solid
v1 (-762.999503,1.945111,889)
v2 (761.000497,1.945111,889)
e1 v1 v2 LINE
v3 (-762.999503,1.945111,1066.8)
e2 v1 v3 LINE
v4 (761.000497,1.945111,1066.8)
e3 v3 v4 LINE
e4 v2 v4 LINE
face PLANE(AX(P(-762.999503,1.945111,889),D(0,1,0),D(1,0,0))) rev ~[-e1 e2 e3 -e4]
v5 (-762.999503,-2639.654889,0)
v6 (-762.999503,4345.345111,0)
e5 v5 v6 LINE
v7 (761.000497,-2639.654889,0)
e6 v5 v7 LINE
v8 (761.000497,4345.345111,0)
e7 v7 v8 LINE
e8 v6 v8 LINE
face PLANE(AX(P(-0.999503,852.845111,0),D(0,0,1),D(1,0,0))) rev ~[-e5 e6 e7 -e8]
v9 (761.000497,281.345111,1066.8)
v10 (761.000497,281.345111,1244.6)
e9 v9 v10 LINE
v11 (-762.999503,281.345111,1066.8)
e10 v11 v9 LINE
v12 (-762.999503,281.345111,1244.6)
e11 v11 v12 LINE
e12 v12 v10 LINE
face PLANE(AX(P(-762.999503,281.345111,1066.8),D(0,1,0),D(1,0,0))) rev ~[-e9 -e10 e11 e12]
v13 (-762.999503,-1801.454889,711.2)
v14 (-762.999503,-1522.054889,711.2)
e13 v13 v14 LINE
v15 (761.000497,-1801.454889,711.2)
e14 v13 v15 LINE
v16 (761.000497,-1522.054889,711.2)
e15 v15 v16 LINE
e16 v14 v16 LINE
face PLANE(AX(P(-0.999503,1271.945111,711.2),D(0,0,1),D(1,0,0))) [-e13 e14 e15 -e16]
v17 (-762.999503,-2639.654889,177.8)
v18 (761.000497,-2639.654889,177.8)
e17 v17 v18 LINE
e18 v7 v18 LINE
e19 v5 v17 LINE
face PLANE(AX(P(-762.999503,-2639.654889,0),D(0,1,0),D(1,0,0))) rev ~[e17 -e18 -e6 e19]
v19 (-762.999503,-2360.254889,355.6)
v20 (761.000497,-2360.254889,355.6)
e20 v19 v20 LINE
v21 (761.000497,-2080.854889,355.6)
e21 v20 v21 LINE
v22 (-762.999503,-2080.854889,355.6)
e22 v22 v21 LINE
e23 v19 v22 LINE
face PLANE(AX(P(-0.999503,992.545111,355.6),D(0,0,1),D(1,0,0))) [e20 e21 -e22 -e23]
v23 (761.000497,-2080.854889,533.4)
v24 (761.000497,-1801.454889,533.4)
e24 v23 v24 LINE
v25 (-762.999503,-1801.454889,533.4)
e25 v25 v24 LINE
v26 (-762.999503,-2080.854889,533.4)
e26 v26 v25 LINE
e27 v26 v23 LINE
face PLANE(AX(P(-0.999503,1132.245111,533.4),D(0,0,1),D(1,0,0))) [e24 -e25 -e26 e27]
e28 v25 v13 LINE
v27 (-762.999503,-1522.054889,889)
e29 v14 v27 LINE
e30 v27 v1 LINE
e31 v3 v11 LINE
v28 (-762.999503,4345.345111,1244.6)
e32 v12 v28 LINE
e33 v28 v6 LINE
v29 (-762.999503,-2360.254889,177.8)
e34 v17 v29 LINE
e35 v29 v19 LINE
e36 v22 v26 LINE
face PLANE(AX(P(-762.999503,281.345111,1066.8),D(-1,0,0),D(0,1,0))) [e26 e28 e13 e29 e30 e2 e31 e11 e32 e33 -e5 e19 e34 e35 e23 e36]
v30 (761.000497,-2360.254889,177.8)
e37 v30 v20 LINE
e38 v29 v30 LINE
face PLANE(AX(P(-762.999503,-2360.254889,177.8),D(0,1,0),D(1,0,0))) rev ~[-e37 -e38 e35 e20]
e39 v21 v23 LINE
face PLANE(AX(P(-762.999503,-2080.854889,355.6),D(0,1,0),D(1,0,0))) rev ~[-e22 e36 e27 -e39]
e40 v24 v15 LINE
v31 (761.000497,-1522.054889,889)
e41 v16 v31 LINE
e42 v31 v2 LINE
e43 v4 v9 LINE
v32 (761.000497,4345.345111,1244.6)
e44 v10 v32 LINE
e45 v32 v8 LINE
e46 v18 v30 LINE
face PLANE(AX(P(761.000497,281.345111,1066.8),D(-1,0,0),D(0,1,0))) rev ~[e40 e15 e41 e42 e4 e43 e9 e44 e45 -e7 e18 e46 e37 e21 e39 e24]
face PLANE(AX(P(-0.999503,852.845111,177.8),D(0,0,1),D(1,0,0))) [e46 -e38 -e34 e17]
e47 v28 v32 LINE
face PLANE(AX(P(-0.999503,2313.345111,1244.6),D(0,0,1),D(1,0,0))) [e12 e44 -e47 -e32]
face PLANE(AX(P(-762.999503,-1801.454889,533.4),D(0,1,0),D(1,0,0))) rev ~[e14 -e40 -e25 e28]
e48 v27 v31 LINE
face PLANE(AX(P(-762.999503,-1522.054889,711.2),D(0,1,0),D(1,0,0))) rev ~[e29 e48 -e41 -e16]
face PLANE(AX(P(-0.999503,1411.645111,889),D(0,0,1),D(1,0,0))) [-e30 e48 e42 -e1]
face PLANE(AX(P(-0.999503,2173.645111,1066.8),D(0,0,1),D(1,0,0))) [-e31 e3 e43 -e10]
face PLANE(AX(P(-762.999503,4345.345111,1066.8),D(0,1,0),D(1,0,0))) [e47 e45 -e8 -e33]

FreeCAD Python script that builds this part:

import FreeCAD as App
import Part
import Sketcher
from FreeCAD import Vector
Q = App.Units.Quantity

doc = App.newDocument("Part")
body = doc.addObject("PartDesign::Body", "Body")

sketch1 = doc.addObject("Sketcher::SketchObject", "Sketch")
body.addObject(sketch1)
sketch1.AttachmentSupport = (doc.XY_Plane, [""])
sketch1.MapMode = "FlatFace"
sketch1.addGeometry([
    Part.LineSegment(Vector(-763, 4345, 0), Vector(-763, -2640, 0)),
    Part.LineSegment(Vector(-763, -2640, 0), Vector(761, -2640, 0)),
    Part.LineSegment(Vector(761, -2640, 0), Vector(761, 4345, 0)),
    Part.LineSegment(Vector(761, 4345, 0), Vector(-763, 4345, 0)),
], False)
sketch1.addConstraint([
    Sketcher.Constraint("Coincident", 0, 2, 1, 1),
    Sketcher.Constraint("Coincident", 1, 2, 2, 1),
    Sketcher.Constraint("Coincident", 2, 2, 3, 1),
    Sketcher.Constraint("Coincident", 3, 2, 0, 1),
    Sketcher.Constraint("Vertical", 0),
    Sketcher.Constraint("Horizontal", 1),
    Sketcher.Constraint("Vertical", 2),
    Sketcher.Constraint("Horizontal", 3),
    Sketcher.Constraint("DistanceX", 1, 1, 1, 2, Q("60 in")),
    Sketcher.Constraint("DistanceY", 0, 2, 0, 1, Q("275 in")),
    Sketcher.Constraint("DistanceY", 0, 2, -1, 1, Q("2639.654889 mm")),
    Sketcher.Constraint("DistanceX", 0, 2, -1, 1, Q("762.999503 mm")),
])
pad1 = doc.addObject("PartDesign::Pad", "Pad")
body.addObject(pad1)
pad1.Profile = sketch1
pad1.Length = Q("7 in")

sketch2 = doc.addObject("Sketcher::SketchObject", "Sketch001")
body.addObject(sketch2)
sketch2.AttachmentSupport = (doc.XY_Plane, [""])
sketch2.MapMode = "FlatFace"
sketch2.AttachmentOffset = App.Placement(Vector(0, 0, 7 * 25.4), App.Rotation())
sketch2.addGeometry([
    Part.LineSegment(Vector(-763, 4345, 0), Vector(-763, -2360, 0)),
    Part.LineSegment(Vector(-763, -2360, 0), Vector(761, -2360, 0)),
    Part.LineSegment(Vector(761, -2360, 0), Vector(761, 4345, 0)),
    Part.LineSegment(Vector(761, 4345, 0), Vector(-763, 4345, 0)),
], False)
sketch2.addConstraint([
    Sketcher.Constraint("Coincident", 0, 2, 1, 1),
    Sketcher.Constraint("Coincident", 1, 2, 2, 1),
    Sketcher.Constraint("Coincident", 2, 2, 3, 1),
    Sketcher.Constraint("Coincident", 3, 2, 0, 1),
    Sketcher.Constraint("Vertical", 0),
    Sketcher.Constraint("Horizontal", 1),
    Sketcher.Constraint("Vertical", 2),
    Sketcher.Constraint("Horizontal", 3),
    Sketcher.Constraint("DistanceX", 1, 1, 1, 2, Q("60 in")),
    Sketcher.Constraint("DistanceY", 0, 2, 0, 1, Q("264 in")),
    Sketcher.Constraint("DistanceY", 0, 2, -1, 1, Q("2360.254889 mm")),
    Sketcher.Constraint("DistanceX", 0, 2, -1, 1, Q("762.999503 mm")),
])
pad2 = doc.addObject("PartDesign::Pad", "Pad001")
body.addObject(pad2)
pad2.Profile = sketch2
pad2.Length = Q("7 in")

sketch3 = doc.addObject("Sketcher::SketchObject", "Sketch002")
body.addObject(sketch3)
sketch3.AttachmentSupport = (doc.XY_Plane, [""])
sketch3.MapMode = "FlatFace"
sketch3.AttachmentOffset = App.Placement(Vector(0, 0, 14 * 25.4), App.Rotation())
sketch3.addGeometry([
    Part.LineSegment(Vector(-763, 4345, 0), Vector(-763, -2081, 0)),
    Part.LineSegment(Vector(-763, -2081, 0), Vector(761, -2081, 0)),
    Part.LineSegment(Vector(761, -2081, 0), Vector(761, 4345, 0)),
    Part.LineSegment(Vector(761, 4345, 0), Vector(-763, 4345, 0)),
], False)
sketch3.addConstraint([
    Sketcher.Constraint("Coincident", 0, 2, 1, 1),
    Sketcher.Constraint("Coincident", 1, 2, 2, 1),
    Sketcher.Constraint("Coincident", 2, 2, 3, 1),
    Sketcher.Constraint("Coincident", 3, 2, 0, 1),
    Sketcher.Constraint("Vertical", 0),
    Sketcher.Constraint("Horizontal", 1),
    Sketcher.Constraint("Vertical", 2),
    Sketcher.Constraint("Horizontal", 3),
    Sketcher.Constraint("DistanceX", 1, 1, 1, 2, Q("60 in")),
    Sketcher.Constraint("DistanceY", 0, 2, 0, 1, Q("253 in")),
    Sketcher.Constraint("DistanceY", 0, 2, -1, 1, Q("2080.854889 mm")),
    Sketcher.Constraint("DistanceX", 0, 2, -1, 1, Q("762.999503 mm")),
])
pad3 = doc.addObject("PartDesign::Pad", "Pad002")
body.addObject(pad3)
pad3.Profile = sketch3
pad3.Length = Q("7 in")

sketch4 = doc.addObject("Sketcher::SketchObject", "Sketch003")
body.addObject(sketch4)
sketch4.AttachmentSupport = (doc.XY_Plane, [""])
sketch4.MapMode = "FlatFace"
sketch4.AttachmentOffset = App.Placement(Vector(0, 0, 21 * 25.4), App.Rotation())
sketch4.addGeometry([
    Part.LineSegment(Vector(-763, 4345, 0), Vector(-763, -1801, 0)),
    Part.LineSegment(Vector(-763, -1801, 0), Vector(761, -1801, 0)),
    Part.LineSegment(Vector(761, -1801, 0), Vector(761, 4345, 0)),
    Part.LineSegment(Vector(761, 4345, 0), Vector(-763, 4345, 0)),
], False)
sketch4.addConstraint([
    Sketcher.Constraint("Coincident", 0, 2, 1, 1),
    Sketcher.Constraint("Coincident", 1, 2, 2, 1),
    Sketcher.Constraint("Coincident", 2, 2, 3, 1),
    Sketcher.Constraint("Coincident", 3, 2, 0, 1),
    Sketcher.Constraint("Vertical", 0),
    Sketcher.Constraint("Horizontal", 1),
    Sketcher.Constraint("Vertical", 2),
    Sketcher.Constraint("Horizontal", 3),
    Sketcher.Constraint("DistanceX", 1, 1, 1, 2, Q("60 in")),
    Sketcher.Constraint("DistanceY", 0, 2, 0, 1, Q("242 in")),
    Sketcher.Constraint("DistanceY", 0, 2, -1, 1, Q("1801.454889 mm")),
    Sketcher.Constraint("DistanceX", 0, 2, -1, 1, Q("762.999503 mm")),
])
pad4 = doc.addObject("PartDesign::Pad", "Pad003")
body.addObject(pad4)
pad4.Profile = sketch4
pad4.Length = Q("7 in")

sketch5 = doc.addObject("Sketcher::SketchObject", "Sketch004")
body.addObject(sketch5)
sketch5.AttachmentSupport = (doc.XY_Plane, [""])
sketch5.MapMode = "FlatFace"
sketch5.AttachmentOffset = App.Placement(Vector(0, 0, 28 * 25.4), App.Rotation())
sketch5.addGeometry([
    Part.LineSegment(Vector(-763, 4345, 0), Vector(-763, -1522, 0)),
    Part.LineSegment(Vector(-763, -1522, 0), Vector(761, -1522, 0)),
    Part.LineSegment(Vector(761, -1522, 0), Vector(761, 4345, 0)),
    Part.LineSegment(Vector(761, 4345, 0), Vector(-763, 4345, 0)),
], False)
sketch5.addConstraint([
    Sketcher.Constraint("Coincident", 0, 2, 1, 1),
    Sketcher.Constraint("Coincident", 1, 2, 2, 1),
    Sketcher.Constraint("Coincident", 2, 2, 3, 1),
    Sketcher.Constraint("Coincident", 3, 2, 0, 1),
    Sketcher.Constraint("Vertical", 0),
    Sketcher.Constraint("Horizontal", 1),
    Sketcher.Constraint("Vertical", 2),
    Sketcher.Constraint("Horizontal", 3),
    Sketcher.Constraint("DistanceX", 1, 1, 1, 2, Q("60 in")),
    Sketcher.Constraint("DistanceY", 0, 2, 0, 1, Q("231 in")),
    Sketcher.Constraint("DistanceY", 0, 2, -1, 1, Q("1522.054889 mm")),
    Sketcher.Constraint("DistanceX", 0, 2, -1, 1, Q("762.999503 mm")),
])
pad5 = doc.addObject("PartDesign::Pad", "Pad004")
body.addObject(pad5)
pad5.Profile = sketch5
pad5.Length = Q("7 in")

sketch6 = doc.addObject("Sketcher::SketchObject", "Sketch005")
body.addObject(sketch6)
sketch6.AttachmentSupport = (doc.XY_Plane, [""])
sketch6.MapMode = "FlatFace"
sketch6.AttachmentOffset = App.Placement(Vector(0, 0, 35 * 25.4), App.Rotation())
sketch6.addGeometry([
    Part.LineSegment(Vector(-763, 4345, 0), Vector(-763, 2, 0)),
    Part.LineSegment(Vector(-763, 2, 0), Vector(761, 2, 0)),
    Part.LineSegment(Vector(761, 2, 0), Vector(761, 4345, 0)),
    Part.LineSegment(Vector(761, 4345, 0), Vector(-763, 4345, 0)),
], False)
sketch6.addConstraint([
    Sketcher.Constraint("Coincident", 0, 2, 1, 1),
    Sketcher.Constraint("Coincident", 1, 2, 2, 1),
    Sketcher.Constraint("Coincident", 2, 2, 3, 1),
    Sketcher.Constraint("Coincident", 3, 2, 0, 1),
    Sketcher.Constraint("Vertical", 0),
    Sketcher.Constraint("Horizontal", 1),
    Sketcher.Constraint("Vertical", 2),
    Sketcher.Constraint("Horizontal", 3),
    Sketcher.Constraint("DistanceX", 1, 1, 1, 2, Q("60 in")),
    Sketcher.Constraint("DistanceY", 0, 2, 0, 1, Q("171 in")),
    Sketcher.Constraint("DistanceY", -1, 1, 0, 2, Q("1.945111 mm")),
    Sketcher.Constraint("DistanceX", 0, 2, -1, 1, Q("762.999503 mm")),
])
pad6 = doc.addObject("PartDesign::Pad", "Pad005")
body.addObject(pad6)
pad6.Profile = sketch6
pad6.Length = Q("7 in")

sketch7 = doc.addObject("Sketcher::SketchObject", "Sketch006")
body.addObject(sketch7)
sketch7.AttachmentSupport = (doc.XY_Plane, [""])
sketch7.MapMode = "FlatFace"
sketch7.AttachmentOffset = App.Placement(Vector(0, 0, 42 * 25.4), App.Rotation())
sketch7.addGeometry([
    Part.LineSegment(Vector(-763, 4345, 0), Vector(-763, 281, 0)),
    Part.LineSegment(Vector(-763, 281, 0), Vector(761, 281, 0)),
    Part.LineSegment(Vector(761, 281, 0), Vector(761, 4345, 0)),
    Part.LineSegment(Vector(761, 4345, 0), Vector(-763, 4345, 0)),
], False)
sketch7.addConstraint([
    Sketcher.Constraint("Coincident", 0, 2, 1, 1),
    Sketcher.Constraint("Coincident", 1, 2, 2, 1),
    Sketcher.Constraint("Coincident", 2, 2, 3, 1),
    Sketcher.Constraint("Coincident", 3, 2, 0, 1),
    Sketcher.Constraint("Vertical", 0),
    Sketcher.Constraint("Horizontal", 1),
    Sketcher.Constraint("Vertical", 2),
    Sketcher.Constraint("Horizontal", 3),
    Sketcher.Constraint("DistanceX", 1, 1, 1, 2, Q("60 in")),
    Sketcher.Constraint("DistanceY", 0, 2, 0, 1, Q("160 in")),
    Sketcher.Constraint("DistanceY", -1, 1, 0, 2, Q("281.345111 mm")),
    Sketcher.Constraint("DistanceX", 0, 2, -1, 1, Q("762.999503 mm")),
])
pad7 = doc.addObject("PartDesign::Pad", "Pad006")
body.addObject(pad7)
pad7.Profile = sketch7
pad7.Length = Q("7 in")

doc.recompute()
